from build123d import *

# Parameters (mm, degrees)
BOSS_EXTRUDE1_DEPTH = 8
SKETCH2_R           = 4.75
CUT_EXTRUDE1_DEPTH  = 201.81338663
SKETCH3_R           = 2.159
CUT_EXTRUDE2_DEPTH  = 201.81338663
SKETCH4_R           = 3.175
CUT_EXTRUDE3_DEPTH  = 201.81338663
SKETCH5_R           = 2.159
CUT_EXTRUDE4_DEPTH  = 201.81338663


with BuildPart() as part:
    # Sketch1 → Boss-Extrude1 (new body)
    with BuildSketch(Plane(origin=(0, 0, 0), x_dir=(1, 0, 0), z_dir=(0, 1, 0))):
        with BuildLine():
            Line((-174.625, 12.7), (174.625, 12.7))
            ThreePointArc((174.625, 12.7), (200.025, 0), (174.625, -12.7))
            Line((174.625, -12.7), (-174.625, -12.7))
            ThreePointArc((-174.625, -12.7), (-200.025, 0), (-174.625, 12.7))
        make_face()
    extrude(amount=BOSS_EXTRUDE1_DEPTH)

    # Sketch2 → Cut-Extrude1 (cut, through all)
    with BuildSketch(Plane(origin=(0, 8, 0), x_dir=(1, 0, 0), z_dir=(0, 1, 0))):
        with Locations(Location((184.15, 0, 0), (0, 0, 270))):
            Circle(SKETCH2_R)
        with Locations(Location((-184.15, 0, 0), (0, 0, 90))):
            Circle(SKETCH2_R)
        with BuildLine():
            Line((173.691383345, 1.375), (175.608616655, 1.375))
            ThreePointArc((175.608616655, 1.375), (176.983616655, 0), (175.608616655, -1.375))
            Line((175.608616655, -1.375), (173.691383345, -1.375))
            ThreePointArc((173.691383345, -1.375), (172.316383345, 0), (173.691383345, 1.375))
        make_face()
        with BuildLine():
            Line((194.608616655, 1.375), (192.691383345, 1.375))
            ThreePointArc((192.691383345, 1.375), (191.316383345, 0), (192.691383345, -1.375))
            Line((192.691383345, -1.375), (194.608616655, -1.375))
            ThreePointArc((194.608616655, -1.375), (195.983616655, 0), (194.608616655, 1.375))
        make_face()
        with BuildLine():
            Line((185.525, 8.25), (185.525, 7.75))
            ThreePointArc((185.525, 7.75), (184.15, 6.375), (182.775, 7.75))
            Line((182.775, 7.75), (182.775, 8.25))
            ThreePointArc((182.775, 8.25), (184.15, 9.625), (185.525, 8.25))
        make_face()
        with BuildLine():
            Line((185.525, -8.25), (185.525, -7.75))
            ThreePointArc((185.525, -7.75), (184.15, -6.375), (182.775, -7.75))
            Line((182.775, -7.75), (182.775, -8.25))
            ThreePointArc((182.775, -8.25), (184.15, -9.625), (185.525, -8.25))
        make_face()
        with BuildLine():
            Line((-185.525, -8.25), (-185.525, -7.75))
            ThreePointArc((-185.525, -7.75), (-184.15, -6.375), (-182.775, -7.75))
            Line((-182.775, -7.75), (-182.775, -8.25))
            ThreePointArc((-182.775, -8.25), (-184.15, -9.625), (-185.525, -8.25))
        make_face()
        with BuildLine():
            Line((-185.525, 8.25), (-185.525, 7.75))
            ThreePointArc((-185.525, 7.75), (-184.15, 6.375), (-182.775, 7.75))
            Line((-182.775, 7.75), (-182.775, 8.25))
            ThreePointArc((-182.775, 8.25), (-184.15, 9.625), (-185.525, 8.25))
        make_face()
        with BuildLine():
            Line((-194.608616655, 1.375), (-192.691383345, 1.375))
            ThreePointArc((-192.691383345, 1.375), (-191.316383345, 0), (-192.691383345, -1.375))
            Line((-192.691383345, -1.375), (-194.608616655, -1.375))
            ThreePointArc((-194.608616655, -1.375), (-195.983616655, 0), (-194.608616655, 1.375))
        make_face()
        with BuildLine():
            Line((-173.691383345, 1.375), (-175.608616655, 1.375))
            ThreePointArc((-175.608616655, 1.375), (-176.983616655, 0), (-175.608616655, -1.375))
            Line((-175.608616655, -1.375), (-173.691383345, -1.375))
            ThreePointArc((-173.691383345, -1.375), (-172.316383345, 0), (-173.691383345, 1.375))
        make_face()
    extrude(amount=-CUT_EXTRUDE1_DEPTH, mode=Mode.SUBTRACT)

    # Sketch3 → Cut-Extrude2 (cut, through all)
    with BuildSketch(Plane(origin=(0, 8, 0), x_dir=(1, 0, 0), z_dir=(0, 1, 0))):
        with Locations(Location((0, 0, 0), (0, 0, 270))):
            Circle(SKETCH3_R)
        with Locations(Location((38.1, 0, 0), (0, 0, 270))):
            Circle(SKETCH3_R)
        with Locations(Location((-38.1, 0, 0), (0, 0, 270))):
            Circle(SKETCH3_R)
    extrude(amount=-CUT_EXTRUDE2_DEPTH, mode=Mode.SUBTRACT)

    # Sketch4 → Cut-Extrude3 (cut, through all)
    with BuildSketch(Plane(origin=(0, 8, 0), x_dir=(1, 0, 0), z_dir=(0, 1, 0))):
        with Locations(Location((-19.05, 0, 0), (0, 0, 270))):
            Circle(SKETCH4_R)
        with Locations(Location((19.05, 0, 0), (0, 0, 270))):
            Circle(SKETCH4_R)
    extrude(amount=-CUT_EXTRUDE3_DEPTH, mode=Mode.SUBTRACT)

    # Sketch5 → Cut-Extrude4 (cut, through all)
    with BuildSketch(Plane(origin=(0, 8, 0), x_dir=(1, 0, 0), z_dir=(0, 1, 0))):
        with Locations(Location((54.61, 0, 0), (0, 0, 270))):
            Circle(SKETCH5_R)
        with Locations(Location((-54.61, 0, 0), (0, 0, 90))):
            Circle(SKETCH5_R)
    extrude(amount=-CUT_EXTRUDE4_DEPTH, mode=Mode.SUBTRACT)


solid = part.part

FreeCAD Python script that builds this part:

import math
import FreeCAD as App
import Part
import Sketcher
from FreeCAD import Vector
Q = App.Units.Quantity

doc = App.newDocument("Part")
body = doc.addObject("PartDesign::Body", "Body")

sketch1 = body.newObject("Sketcher::SketchObject", "Sketch")
sketch1.AttachmentSupport = (doc.getObject("XZ_Plane"), [""])
sketch1.MapMode = "FlatFace"
sketch1.addGeometry([
    Part.LineSegment(Vector(175, -13, 0), Vector(-175, -13, 0)),
    Part.ArcOfCircle(Part.Circle(Vector(-184, 0, 0), Vector(0, 0, 1), 16), math.radians(53), math.radians(307)),
    Part.LineSegment(Vector(-175, 13, 0), Vector(175, 13, 0)),
    Part.ArcOfCircle(Part.Circle(Vector(184, 0, 0), Vector(0, 0, 1), 16), math.radians(-127), math.radians(127)),
], False)
sketch1.addConstraint([
    Sketcher.Constraint("Coincident", 0, 2, 1, 2),
    Sketcher.Constraint("Coincident", 1, 1, 2, 1),
    Sketcher.Constraint("Coincident", 2, 2, 3, 2),
    Sketcher.Constraint("Coincident", 3, 1, 0, 1),
    Sketcher.Constraint("Horizontal", 0),
    Sketcher.Constraint("Horizontal", 2),
    Sketcher.Constraint("Equal", 1, 3),
    Sketcher.Constraint("Symmetric", 1, 3, 3, 3, -1, 1),
    Sketcher.Constraint("Symmetric", 0, 2, 1, 1, -1),
    Sketcher.Constraint("Radius", 1, Q("0.625 in")),
    Sketcher.Constraint("DistanceY", 0, 2, 1, 1, Q("1 in")),
    Sketcher.Constraint("DistanceX", 0, 2, 0, 1, Q("13.75 in")),
])
pad1 = body.newObject("PartDesign::Pad", "Pad")
pad1.Profile = sketch1
pad1.Length = 8
pad1.Reversed = True

sketch2 = body.newObject("Sketcher::SketchObject", "Sketch001")
sketch2.AttachmentSupport = (doc.getObject("XZ_Plane"), [""])
sketch2.MapMode = "FlatFace"
sketch2.AttachmentOffset = App.Placement(Vector(0, 0, -8), App.Rotation())
sketch2.addGeometry([
    Part.Circle(Vector(184.2, 0, 0), Vector(0, 0, 1), 4.8),
    Part.Circle(Vector(-184.2, 0, 0), Vector(0, 0, 1), 4.8),
    Part.LineSegment(Vector(175.6, -1.4, 0), Vector(173.7, -1.4, 0)),
    Part.ArcOfCircle(Part.Circle(Vector(173.7, 0, 0), Vector(0, 0, 1), 1.4), math.radians(90), math.radians(270)),
    Part.LineSegment(Vector(173.7, 1.4, 0), Vector(175.6, 1.4, 0)),
    Part.ArcOfCircle(Part.Circle(Vector(175.6, 0, 0), Vector(0, 0, 1), 1.4), math.radians(-90), math.radians(90)),
    Part.LineSegment(Vector(194.6, -1.4, 0), Vector(192.7, -1.4, 0)),
    Part.ArcOfCircle(Part.Circle(Vector(192.7, 0, 0), Vector(0, 0, 1), 1.4), math.radians(90), math.radians(270)),
    Part.LineSegment(Vector(192.7, 1.4, 0), Vector(194.6, 1.4, 0)),
    Part.ArcOfCircle(Part.Circle(Vector(194.6, 0, 0), Vector(0, 0, 1), 1.4), math.radians(-90), math.radians(90)),
    Part.LineSegment(Vector(185.5, -7.8, 0), Vector(185.5, -8.2, 0)),
    Part.ArcOfCircle(Part.Circle(Vector(184.2, -8.2, 0), Vector(0, 0, 1), 1.4), math.radians(180), math.radians(360)),
    Part.LineSegment(Vector(182.8, -8.2, 0), Vector(182.8, -7.8, 0)),
    Part.ArcOfCircle(Part.Circle(Vector(184.2, -7.8, 0), Vector(0, 0, 1), 1.4), math.radians(0), math.radians(180)),
    Part.LineSegment(Vector(185.5, 8.2, 0), Vector(185.5, 7.8, 0)),
    Part.ArcOfCircle(Part.Circle(Vector(184.2, 7.8, 0), Vector(0, 0, 1), 1.4), math.radians(180), math.radians(360)),
    Part.LineSegment(Vector(182.8, 7.8, 0), Vector(182.8, 8.2, 0)),
    Part.ArcOfCircle(Part.Circle(Vector(184.2, 8.2, 0), Vector(0, 0, 1), 1.4), math.radians(0), math.radians(180)),
    Part.LineSegment(Vector(-185.5, 7.8, 0), Vector(-185.5, 8.2, 0)),
    Part.ArcOfCircle(Part.Circle(Vector(-184.2, 8.2, 0), Vector(0, 0, 1), 1.4), math.radians(0), math.radians(180)),
    Part.LineSegment(Vector(-182.8, 8.2, 0), Vector(-182.8, 7.8, 0)),
    Part.ArcOfCircle(Part.Circle(Vector(-184.2, 7.8, 0), Vector(0, 0, 1), 1.4), math.radians(180), math.radians(360)),
    Part.LineSegment(Vector(-185.5, -8.2, 0), Vector(-185.5, -7.8, 0)),
    Part.ArcOfCircle(Part.Circle(Vector(-184.2, -7.8, 0), Vector(0, 0, 1), 1.4), math.radians(0), math.radians(180)),
    Part.LineSegment(Vector(-182.8, -7.8, 0), Vector(-182.8, -8.2, 0)),
    Part.ArcOfCircle(Part.Circle(Vector(-184.2, -8.2, 0), Vector(0, 0, 1), 1.4), math.radians(180), math.radians(360)),
    Part.LineSegment(Vector(-192.7, -1.4, 0), Vector(-194.6, -1.4, 0)),
    Part.ArcOfCircle(Part.Circle(Vector(-194.6, 0, 0), Vector(0, 0, 1), 1.4), math.radians(90), math.radians(270)),
    Part.LineSegment(Vector(-194.6, 1.4, 0), Vector(-192.7, 1.4, 0)),
    Part.ArcOfCircle(Part.Circle(Vector(-192.7, 0, 0), Vector(0, 0, 1), 1.4), math.radians(-90), math.radians(90)),
    Part.LineSegment(Vector(-173.7, -1.4, 0), Vector(-175.6, -1.4, 0)),
    Part.ArcOfCircle(Part.Circle(Vector(-175.6, 0, 0), Vector(0, 0, 1), 1.4), math.radians(90), math.radians(270)),
    Part.LineSegment(Vector(-175.6, 1.4, 0), Vector(-173.7, 1.4, 0)),
    Part.ArcOfCircle(Part.Circle(Vector(-173.7, 0, 0), Vector(0, 0, 1), 1.4), math.radians(-90), math.radians(90)),
], False)
sketch2.addConstraint([
    Sketcher.Constraint("Tangent", 2, 2, 3, 2),
    Sketcher.Constraint("Tangent", 3, 1, 4, 1),
    Sketcher.Constraint("Tangent", 4, 2, 5, 2),
    Sketcher.Constraint("Tangent", 5, 1, 2, 1),
    Sketcher.Constraint("Tangent", 6, 2, 7, 2),
    Sketcher.Constraint("Tangent", 7, 1, 8, 1),
    Sketcher.Constraint("Tangent", 8, 2, 9, 2),
    Sketcher.Constraint("Tangent", 9, 1, 6, 1),
    Sketcher.Constraint("Tangent", 10, 2, 11, 2),
    Sketcher.Constraint("Tangent", 11, 1, 12, 1),
    Sketcher.Constraint("Tangent", 12, 2, 13, 2),
    Sketcher.Constraint("Tangent", 13, 1, 10, 1),
    Sketcher.Constraint("Tangent", 14, 2, 15, 2),
    Sketcher.Constraint("Tangent", 15, 1, 16, 1),
    Sketcher.Constraint("Tangent", 16, 2, 17, 2),
    Sketcher.Constraint("Tangent", 17, 1, 14, 1),
    Sketcher.Constraint("Tangent", 18, 2, 19, 2),
    Sketcher.Constraint("Tangent", 19, 1, 20, 1),
    Sketcher.Constraint("Tangent", 20, 2, 21, 2),
    Sketcher.Constraint("Tangent", 21, 1, 18, 1),
    Sketcher.Constraint("Tangent", 22, 2, 23, 2),
    Sketcher.Constraint("Tangent", 23, 1, 24, 1),
    Sketcher.Constraint("Tangent", 24, 2, 25, 2),
    Sketcher.Constraint("Tangent", 25, 1, 22, 1),
    Sketcher.Constraint("Tangent", 26, 2, 27, 2),
    Sketcher.Constraint("Tangent", 27, 1, 28, 1),
    Sketcher.Constraint("Tangent", 28, 2, 29, 2),
    Sketcher.Constraint("Tangent", 29, 1, 26, 1),
    Sketcher.Constraint("Tangent", 30, 2, 31, 2),
    Sketcher.Constraint("Tangent", 31, 1, 32, 1),
    Sketcher.Constraint("Tangent", 32, 2, 33, 2),
    Sketcher.Constraint("Tangent", 33, 1, 30, 1),
    Sketcher.Constraint("Horizontal", 2),
    Sketcher.Constraint("Horizontal", 4),
    Sketcher.Constraint("Horizontal", 6),
    Sketcher.Constraint("Horizontal", 8),
    Sketcher.Constraint("Vertical", 10),
    Sketcher.Constraint("Vertical", 12),
    Sketcher.Constraint("Vertical", 14),
    Sketcher.Constraint("Vertical", 16),
    Sketcher.Constraint("Vertical", 18),
    Sketcher.Constraint("Vertical", 20),
    Sketcher.Constraint("Vertical", 22),
    Sketcher.Constraint("Vertical", 24),
    Sketcher.Constraint("Horizontal", 26),
    Sketcher.Constraint("Horizontal", 28),
    Sketcher.Constraint("Horizontal", 30),
    Sketcher.Constraint("Horizontal", 32),
    Sketcher.Constraint("Equal", 0, 1),
    Sketcher.Constraint("Equal", 5, 7),
    Sketcher.Constraint("Equal", 9, 11),
    Sketcher.Constraint("Equal", 13, 15),
    Sketcher.Constraint("Equal", 17, 19),
    Sketcher.Constraint("Equal", 21, 23),
    Sketcher.Constraint("Equal", 25, 27),
    Sketcher.Constraint("Equal", 29, 31),
    Sketcher.Constraint("Symmetric", 0, 3, 1, 3, -1, 1),
    Sketcher.Constraint("Symmetric", 11, 3, 19, 3, -1, 1),
    Sketcher.Constraint("Symmetric", 15, 3, 23, 3, -1, 1),
    Sketcher.Constraint("Symmetric", 9, 3, 27, 3, -1, 1),
    Sketcher.Constraint("Symmetric", 5, 3, 31, 3, -1, 1),
    Sketcher.Constraint("Symmetric", 17, 3, 19, 3, -2),
    Sketcher.Constraint("Symmetric", 7, 3, 29, 3, -2),
    Sketcher.Constraint("Symmetric", 3, 3, 33, 3, -2),
    Sketcher.Constraint("PointOnObject", 0, 3, -1),
    Sketcher.Constraint("Horizontal", 15, 3, 21, 3),
    Sketcher.Constraint("Horizontal", 13, 3, 23, 3),
    Sketcher.Constraint("Horizontal", 11, 3, 25, 3),
    Sketcher.Constraint("Vertical", 0, 3, 11, 3),
    Sketcher.Constraint("Equal", 4, 6),
    Sketcher.Constraint("DistanceX", 1, 3, 0, 3, Q("14.5 in")),
    Sketcher.Constraint("Diameter", 0, 9.5),
    Sketcher.Constraint("Radius", 3, 1.375),
    Sketcher.Constraint("DistanceY", 10, 2, 10, 1, 0.5),
    Sketcher.Constraint("DistanceY", 11, 3, -1, 1, 8.25),
    Sketcher.Constraint("DistanceX", 3, 3, 7, 3, 19.0),
    Sketcher.Constraint("DistanceX", 2, 2, 2, 1, 1.917233),
    Sketcher.Constraint("DistanceX", -1, 1, 3, 3, 173.691383),
])
pocket1 = body.newObject("PartDesign::Pocket", "Pocket")
pocket1.Profile = sketch2
pocket1.Type = "ThroughAll"
pocket1.Reversed = True

sketch3 = body.newObject("Sketcher::SketchObject", "Sketch002")
sketch3.AttachmentSupport = (doc.getObject("XZ_Plane"), [""])
sketch3.MapMode = "FlatFace"
sketch3.AttachmentOffset = App.Placement(Vector(0, 0, -8), App.Rotation())
sketch3.addGeometry([
    Part.Circle(Vector(0, 0, 0), Vector(0, 0, 1), 2.2),
    Part.Circle(Vector(38.1, 0, 0), Vector(0, 0, 1), 2.2),
    Part.Circle(Vector(-38.1, 0, 0), Vector(0, 0, 1), 2.2),
], False)
sketch3.addConstraint([
    Sketcher.Constraint("Coincident", 0, 3, -1, 1),
    Sketcher.Constraint("Equal", 0, 1),
    Sketcher.Constraint("Equal", 1, 2),
    Sketcher.Constraint("Symmetric", 1, 3, 2, 3, -1, 1),
    Sketcher.Constraint("PointOnObject", 1, 3, -1),
    Sketcher.Constraint("Diameter", 0, Q("0.17 in")),
    Sketcher.Constraint("DistanceX", 2, 3, 1, 3, Q("3 in")),
])
pocket2 = body.newObject("PartDesign::Pocket", "Pocket001")
pocket2.Profile = sketch3
pocket2.Type = "ThroughAll"
pocket2.Reversed = True

sketch4 = body.newObject("Sketcher::SketchObject", "Sketch003")
sketch4.AttachmentSupport = (doc.getObject("XZ_Plane"), [""])
sketch4.MapMode = "FlatFace"
sketch4.AttachmentOffset = App.Placement(Vector(0, 0, -8), App.Rotation())
sketch4.addGeometry([
    Part.Circle(Vector(-19.1, 0, 0), Vector(0, 0, 1), 3.2),
    Part.Circle(Vector(19.1, 0, 0), Vector(0, 0, 1), 3.2),
], False)
sketch4.addConstraint([
    Sketcher.Constraint("Equal", 0, 1),
    Sketcher.Constraint("Symmetric", 0, 3, 1, 3, -1, 1),
    Sketcher.Constraint("PointOnObject", 0, 3, -1),
    Sketcher.Constraint("Diameter", 0, Q("0.25 in")),
    Sketcher.Constraint("DistanceX", 0, 3, 1, 3, Q("1.5 in")),
])
pocket3 = body.newObject("PartDesign::Pocket", "Pocket002")
pocket3.Profile = sketch4
pocket3.Type = "ThroughAll"
pocket3.Reversed = True

sketch5 = body.newObject("Sketcher::SketchObject", "Sketch004")
sketch5.AttachmentSupport = (doc.getObject("XZ_Plane"), [""])
sketch5.MapMode = "FlatFace"
sketch5.AttachmentOffset = App.Placement(Vector(0, 0, -8), App.Rotation())
sketch5.addGeometry([
    Part.Circle(Vector(54.6, 0, 0), Vector(0, 0, 1), 2.2),
    Part.Circle(Vector(-54.6, 0, 0), Vector(0, 0, 1), 2.2),
], False)
sketch5.addConstraint([
    Sketcher.Constraint("Equal", 0, 1),
    Sketcher.Constraint("Symmetric", 0, 3, 1, 3, -1, 1),
    Sketcher.Constraint("PointOnObject", 0, 3, -1),
    Sketcher.Constraint("Diameter", 0, Q("0.17 in")),
    Sketcher.Constraint("DistanceX", 1, 3, 0, 3, Q("4.3 in")),
])
pocket4 = body.newObject("PartDesign::Pocket", "Pocket003")
pocket4.Profile = sketch5
pocket4.Type = "ThroughAll"
pocket4.Reversed = True

doc.recompute()
